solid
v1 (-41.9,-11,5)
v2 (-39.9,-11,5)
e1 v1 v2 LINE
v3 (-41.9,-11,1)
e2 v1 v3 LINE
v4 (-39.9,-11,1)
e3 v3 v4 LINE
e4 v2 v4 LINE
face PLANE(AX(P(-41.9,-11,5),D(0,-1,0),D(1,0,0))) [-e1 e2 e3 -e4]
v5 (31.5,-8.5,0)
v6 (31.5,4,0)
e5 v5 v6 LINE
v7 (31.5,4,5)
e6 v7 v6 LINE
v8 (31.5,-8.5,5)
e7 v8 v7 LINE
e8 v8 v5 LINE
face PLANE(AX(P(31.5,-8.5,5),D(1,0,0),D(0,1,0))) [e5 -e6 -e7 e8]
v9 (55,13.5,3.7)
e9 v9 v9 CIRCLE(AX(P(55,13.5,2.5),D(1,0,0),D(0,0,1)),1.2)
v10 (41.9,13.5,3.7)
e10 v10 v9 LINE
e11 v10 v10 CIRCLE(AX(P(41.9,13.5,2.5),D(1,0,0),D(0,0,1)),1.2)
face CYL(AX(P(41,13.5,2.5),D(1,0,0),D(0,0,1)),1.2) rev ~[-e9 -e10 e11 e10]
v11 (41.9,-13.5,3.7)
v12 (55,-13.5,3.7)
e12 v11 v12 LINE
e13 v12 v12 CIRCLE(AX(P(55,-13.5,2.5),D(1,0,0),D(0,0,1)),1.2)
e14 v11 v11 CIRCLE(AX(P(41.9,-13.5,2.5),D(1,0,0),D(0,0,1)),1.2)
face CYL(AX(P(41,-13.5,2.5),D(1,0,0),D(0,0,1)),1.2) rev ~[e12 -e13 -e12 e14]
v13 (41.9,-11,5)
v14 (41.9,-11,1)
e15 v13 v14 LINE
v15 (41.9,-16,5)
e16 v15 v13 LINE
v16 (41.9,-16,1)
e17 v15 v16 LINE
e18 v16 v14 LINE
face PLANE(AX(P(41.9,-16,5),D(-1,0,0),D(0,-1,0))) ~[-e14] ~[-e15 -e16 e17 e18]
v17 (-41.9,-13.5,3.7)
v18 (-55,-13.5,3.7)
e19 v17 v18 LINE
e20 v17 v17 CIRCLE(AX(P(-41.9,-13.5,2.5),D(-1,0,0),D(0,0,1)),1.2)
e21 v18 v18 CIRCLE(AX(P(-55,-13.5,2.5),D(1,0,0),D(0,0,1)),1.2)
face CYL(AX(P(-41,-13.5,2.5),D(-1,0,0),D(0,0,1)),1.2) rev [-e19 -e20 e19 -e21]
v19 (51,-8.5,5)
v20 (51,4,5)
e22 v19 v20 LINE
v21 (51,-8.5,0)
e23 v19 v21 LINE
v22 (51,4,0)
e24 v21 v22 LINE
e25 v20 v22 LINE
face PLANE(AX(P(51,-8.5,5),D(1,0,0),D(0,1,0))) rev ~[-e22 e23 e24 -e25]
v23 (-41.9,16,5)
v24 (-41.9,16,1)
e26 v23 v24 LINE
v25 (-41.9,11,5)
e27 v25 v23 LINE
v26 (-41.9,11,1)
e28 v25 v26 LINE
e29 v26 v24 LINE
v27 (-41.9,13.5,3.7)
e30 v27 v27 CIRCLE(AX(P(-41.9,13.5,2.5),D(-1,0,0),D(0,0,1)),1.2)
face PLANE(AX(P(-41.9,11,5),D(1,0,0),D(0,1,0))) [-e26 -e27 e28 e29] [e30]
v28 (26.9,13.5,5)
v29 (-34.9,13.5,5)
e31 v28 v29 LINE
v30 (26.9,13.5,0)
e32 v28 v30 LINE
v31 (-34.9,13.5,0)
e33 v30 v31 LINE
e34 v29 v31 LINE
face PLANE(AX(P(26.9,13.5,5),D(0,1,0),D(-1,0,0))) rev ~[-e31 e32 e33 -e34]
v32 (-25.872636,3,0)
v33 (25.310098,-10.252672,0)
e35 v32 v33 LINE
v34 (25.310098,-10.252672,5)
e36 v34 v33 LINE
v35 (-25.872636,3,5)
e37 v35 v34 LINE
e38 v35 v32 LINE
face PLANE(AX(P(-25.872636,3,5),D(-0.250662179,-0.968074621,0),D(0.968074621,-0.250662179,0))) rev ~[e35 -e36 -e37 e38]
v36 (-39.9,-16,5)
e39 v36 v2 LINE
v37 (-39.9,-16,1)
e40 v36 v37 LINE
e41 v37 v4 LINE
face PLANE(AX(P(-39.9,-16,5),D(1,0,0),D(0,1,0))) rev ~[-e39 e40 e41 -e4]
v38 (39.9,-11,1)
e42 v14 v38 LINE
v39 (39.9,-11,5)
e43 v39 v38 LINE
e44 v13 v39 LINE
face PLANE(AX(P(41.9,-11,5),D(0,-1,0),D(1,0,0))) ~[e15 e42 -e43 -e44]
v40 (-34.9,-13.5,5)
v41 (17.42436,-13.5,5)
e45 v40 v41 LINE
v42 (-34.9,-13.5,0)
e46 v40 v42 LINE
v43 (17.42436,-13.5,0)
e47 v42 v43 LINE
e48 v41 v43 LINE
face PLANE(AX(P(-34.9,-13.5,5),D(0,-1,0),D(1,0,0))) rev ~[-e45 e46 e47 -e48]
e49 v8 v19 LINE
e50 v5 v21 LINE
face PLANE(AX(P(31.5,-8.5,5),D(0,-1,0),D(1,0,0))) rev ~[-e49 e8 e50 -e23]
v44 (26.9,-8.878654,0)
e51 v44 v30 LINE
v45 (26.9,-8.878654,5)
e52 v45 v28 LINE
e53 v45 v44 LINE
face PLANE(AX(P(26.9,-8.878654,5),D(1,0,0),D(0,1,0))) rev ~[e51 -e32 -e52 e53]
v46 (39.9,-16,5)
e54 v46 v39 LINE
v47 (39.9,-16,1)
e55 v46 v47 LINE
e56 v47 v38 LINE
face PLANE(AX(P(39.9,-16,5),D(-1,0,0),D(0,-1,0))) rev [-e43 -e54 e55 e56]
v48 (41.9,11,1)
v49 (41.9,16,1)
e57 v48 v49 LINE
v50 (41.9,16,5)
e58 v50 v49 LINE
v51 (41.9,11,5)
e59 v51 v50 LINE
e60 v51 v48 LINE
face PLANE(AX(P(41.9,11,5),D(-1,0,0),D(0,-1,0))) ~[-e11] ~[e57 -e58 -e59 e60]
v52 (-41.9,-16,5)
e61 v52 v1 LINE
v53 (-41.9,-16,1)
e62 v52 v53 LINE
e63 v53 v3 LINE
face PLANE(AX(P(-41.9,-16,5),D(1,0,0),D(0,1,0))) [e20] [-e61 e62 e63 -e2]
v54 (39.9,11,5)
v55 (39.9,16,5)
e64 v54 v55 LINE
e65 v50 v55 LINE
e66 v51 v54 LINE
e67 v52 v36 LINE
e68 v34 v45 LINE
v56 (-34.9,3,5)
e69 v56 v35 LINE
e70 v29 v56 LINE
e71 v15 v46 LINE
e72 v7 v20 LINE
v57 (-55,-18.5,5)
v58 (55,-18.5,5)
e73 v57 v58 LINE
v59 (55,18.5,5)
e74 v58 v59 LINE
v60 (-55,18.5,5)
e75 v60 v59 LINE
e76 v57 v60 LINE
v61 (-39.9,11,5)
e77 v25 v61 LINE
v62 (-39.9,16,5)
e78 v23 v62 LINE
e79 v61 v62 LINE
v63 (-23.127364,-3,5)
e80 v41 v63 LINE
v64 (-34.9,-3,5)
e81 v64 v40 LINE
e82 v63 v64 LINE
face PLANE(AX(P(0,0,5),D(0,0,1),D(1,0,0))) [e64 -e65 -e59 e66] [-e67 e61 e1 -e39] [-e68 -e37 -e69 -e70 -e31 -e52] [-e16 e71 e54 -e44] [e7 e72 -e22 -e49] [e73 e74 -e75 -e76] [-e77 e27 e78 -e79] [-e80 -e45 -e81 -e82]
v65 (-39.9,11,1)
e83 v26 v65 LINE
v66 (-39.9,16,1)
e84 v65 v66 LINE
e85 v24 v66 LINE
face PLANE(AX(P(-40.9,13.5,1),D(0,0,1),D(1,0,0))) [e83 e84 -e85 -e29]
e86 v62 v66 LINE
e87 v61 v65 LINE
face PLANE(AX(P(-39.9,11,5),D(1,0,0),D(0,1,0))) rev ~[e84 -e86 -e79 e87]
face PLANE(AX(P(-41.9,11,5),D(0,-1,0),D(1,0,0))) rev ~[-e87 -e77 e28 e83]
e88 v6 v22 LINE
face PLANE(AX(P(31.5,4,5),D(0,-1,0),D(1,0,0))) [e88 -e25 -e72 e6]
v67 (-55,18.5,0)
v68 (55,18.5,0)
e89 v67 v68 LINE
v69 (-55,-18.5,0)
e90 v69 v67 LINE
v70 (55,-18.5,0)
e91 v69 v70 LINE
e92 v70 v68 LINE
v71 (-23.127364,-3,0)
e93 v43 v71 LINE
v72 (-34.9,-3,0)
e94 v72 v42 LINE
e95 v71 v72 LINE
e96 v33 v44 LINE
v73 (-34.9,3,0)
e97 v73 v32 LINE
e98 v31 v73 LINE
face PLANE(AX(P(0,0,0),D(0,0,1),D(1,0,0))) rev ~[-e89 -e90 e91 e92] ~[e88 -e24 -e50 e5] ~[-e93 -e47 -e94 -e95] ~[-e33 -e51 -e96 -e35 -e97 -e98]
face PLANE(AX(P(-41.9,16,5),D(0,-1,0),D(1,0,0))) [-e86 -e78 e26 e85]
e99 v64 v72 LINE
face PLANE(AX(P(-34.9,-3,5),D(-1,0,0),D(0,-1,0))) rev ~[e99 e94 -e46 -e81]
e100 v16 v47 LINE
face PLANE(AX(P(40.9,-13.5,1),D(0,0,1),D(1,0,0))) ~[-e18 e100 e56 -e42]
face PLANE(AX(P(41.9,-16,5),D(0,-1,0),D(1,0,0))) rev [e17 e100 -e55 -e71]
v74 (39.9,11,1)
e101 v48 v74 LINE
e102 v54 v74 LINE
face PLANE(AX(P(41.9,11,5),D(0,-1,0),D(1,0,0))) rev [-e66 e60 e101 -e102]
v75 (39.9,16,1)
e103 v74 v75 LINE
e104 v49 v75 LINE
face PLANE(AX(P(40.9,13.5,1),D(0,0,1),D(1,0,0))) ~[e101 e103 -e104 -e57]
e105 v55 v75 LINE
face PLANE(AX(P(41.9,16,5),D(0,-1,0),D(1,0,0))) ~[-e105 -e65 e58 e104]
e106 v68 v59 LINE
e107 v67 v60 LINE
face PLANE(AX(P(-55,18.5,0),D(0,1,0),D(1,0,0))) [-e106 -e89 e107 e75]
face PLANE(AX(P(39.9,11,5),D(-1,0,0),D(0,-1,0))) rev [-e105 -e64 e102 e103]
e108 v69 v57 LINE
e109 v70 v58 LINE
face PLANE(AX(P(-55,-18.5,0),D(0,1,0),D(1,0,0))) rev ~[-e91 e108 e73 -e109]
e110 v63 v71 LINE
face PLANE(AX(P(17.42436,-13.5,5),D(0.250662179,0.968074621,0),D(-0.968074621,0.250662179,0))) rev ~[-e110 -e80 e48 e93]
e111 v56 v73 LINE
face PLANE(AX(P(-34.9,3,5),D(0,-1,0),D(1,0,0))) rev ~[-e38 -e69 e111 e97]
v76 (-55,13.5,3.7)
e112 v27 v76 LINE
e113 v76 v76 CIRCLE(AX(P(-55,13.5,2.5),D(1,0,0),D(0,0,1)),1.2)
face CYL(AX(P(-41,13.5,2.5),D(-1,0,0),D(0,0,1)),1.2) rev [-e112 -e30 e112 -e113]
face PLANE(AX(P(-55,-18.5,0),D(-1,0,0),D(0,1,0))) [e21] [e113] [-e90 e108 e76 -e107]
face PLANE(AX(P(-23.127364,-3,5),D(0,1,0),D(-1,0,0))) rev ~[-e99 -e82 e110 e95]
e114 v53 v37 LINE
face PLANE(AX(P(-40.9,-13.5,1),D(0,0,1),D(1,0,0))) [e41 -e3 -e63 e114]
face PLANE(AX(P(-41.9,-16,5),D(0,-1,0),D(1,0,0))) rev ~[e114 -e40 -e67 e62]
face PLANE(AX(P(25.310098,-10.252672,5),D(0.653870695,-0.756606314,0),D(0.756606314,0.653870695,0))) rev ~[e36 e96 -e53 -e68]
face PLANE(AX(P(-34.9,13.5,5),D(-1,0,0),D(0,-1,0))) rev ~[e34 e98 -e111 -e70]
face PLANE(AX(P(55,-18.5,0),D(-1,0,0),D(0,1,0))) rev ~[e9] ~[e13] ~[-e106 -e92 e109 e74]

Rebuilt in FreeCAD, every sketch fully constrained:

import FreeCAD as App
import Part
import Sketcher
Q = App.Units.Quantity

doc = App.newDocument("Part")
body = doc.addObject("PartDesign::Body", "Body")

# Sketch on XY plane
sketch1 = doc.addObject("Sketcher::SketchObject", "Sketch")
body.addObject(sketch1)
sketch1.AttachmentSupport = (doc.XY_Plane, [""])
sketch1.MapMode = "FlatFace"
sketch1.addGeometry([
    Part.LineSegment(App.Vector(-55, 18, 0), App.Vector(-55, -18, 0)),
    Part.LineSegment(App.Vector(-55, -18, 0), App.Vector(55, -18, 0)),
    Part.LineSegment(App.Vector(55, -18, 0), App.Vector(55, 18, 0)),
    Part.LineSegment(App.Vector(55, 18, 0), App.Vector(-55, 18, 0)),
], False)
sketch1.addConstraint([
    Sketcher.Constraint("Coincident", 0, 2, 1, 1),
    Sketcher.Constraint("Coincident", 1, 2, 2, 1),
    Sketcher.Constraint("Coincident", 2, 2, 3, 1),
    Sketcher.Constraint("Coincident", 3, 2, 0, 1),
    Sketcher.Constraint("Vertical", 0),
    Sketcher.Constraint("Horizontal", 1),
    Sketcher.Constraint("Vertical", 2),
    Sketcher.Constraint("Horizontal", 3),
    Sketcher.Constraint("Symmetric", 0, 2, 2, 2, -1, 1),
    Sketcher.Constraint("DistanceX", 1, 1, 1, 2, 110.0),
    Sketcher.Constraint("DistanceY", 0, 2, 0, 1, 37.0),
])
pad1 = doc.addObject("PartDesign::Pad", "Pad")
body.addObject(pad1)
pad1.Profile = sketch1
pad1.Length = 5

# Sketch on XZ plane
sketch2 = doc.addObject("Sketcher::SketchObject", "Sketch001")
body.addObject(sketch2)
sketch2.AttachmentSupport = (doc.XZ_Plane, [""])
sketch2.MapMode = "FlatFace"
sketch2.AttachmentOffset = App.Placement(App.Vector(0, 0, -13.5), App.Rotation())
sketch2.addGeometry([
    Part.LineSegment(App.Vector(-40.3, 2.5, 0), App.Vector(-55, 2.5, 0)),
    Part.LineSegment(App.Vector(-55, 2.5, 0), App.Vector(-55, 3.7, 0)),
    Part.LineSegment(App.Vector(-55, 3.7, 0), App.Vector(-41, 3.7, 0)),
    Part.LineSegment(App.Vector(-41, 3.7, 0), App.Vector(-40.3, 2.5, 0)),
], False)
sketch2.addGeometry(Part.LineSegment(App.Vector(-55, 2.5, 0), App.Vector(-40.3, 2.5, 0)), True)  # axis
sketch2.addConstraint([
    Sketcher.Constraint("Coincident", 0, 2, 1, 1),
    Sketcher.Constraint("Coincident", 1, 2, 2, 1),
    Sketcher.Constraint("Coincident", 2, 2, 3, 1),
    Sketcher.Constraint("Coincident", 3, 2, 0, 1),
    Sketcher.Constraint("Horizontal", 0),
    Sketcher.Constraint("Vertical", 1),
    Sketcher.Constraint("Horizontal", 2),
    Sketcher.Constraint("Horizontal", 4),
    Sketcher.Constraint("Coincident", 4, 1, 0, 2),
    Sketcher.Constraint("Equal", 0, 4),
    Sketcher.Constraint("DistanceX", 2, 1, 2, 2, 14.0),
    Sketcher.Constraint("Angle", 3, Q("-59 deg")),
    Sketcher.Constraint("DistanceY", 1, 1, 1, 2, 1.2),
    Sketcher.Constraint("DistanceX", 0, 2, -1, 1, 55.0),
    Sketcher.Constraint("DistanceY", -1, 1, 0, 2, 2.5),
])
groove = doc.addObject("PartDesign::Groove", "Groove")
body.addObject(groove)
groove.Profile = sketch2
groove.ReferenceAxis = (sketch2, ["Axis0"])
groove.Angle = 360
doc.recompute()

linearpattern = doc.addObject("PartDesign::LinearPattern", "LinearPattern")
body.addObject(linearpattern)
linearpattern.Originals = [groove]
linearpattern.Direction = (doc.Y_Axis, [""])
linearpattern.Mode = "offset"
linearpattern.Offset = 27
linearpattern.Occurrences = 2
linearpattern.Reversed = True
body.Tip = linearpattern

# Sketch on XY plane
sketch3 = doc.addObject("Sketcher::SketchObject", "Sketch002")
body.addObject(sketch3)
sketch3.AttachmentSupport = (doc.XY_Plane, [""])
sketch3.MapMode = "FlatFace"
sketch3.AttachmentOffset = App.Placement(App.Vector(0, 0, 5), App.Rotation())
sketch3.addGeometry([
    Part.LineSegment(App.Vector(-41.9, 16, 0), App.Vector(-41.9, 11, 0)),  # 0
    Part.LineSegment(App.Vector(-41.9, 11, 0), App.Vector(-39.9, 11, 0)),  # 1
    Part.LineSegment(App.Vector(-39.9, 11, 0), App.Vector(-39.9, 16, 0)),  # 2
    Part.LineSegment(App.Vector(-39.9, 16, 0), App.Vector(-41.9, 16, 0)),  # 3
    Part.LineSegment(App.Vector(-41.9, -11, 0), App.Vector(-41.9, -16, 0)),  # 4
    Part.LineSegment(App.Vector(-41.9, -16, 0), App.Vector(-39.9, -16, 0)),  # 5
    Part.LineSegment(App.Vector(-39.9, -16, 0), App.Vector(-39.9, -11, 0)),  # 6
    Part.LineSegment(App.Vector(-39.9, -11, 0), App.Vector(-41.9, -11, 0)),  # 7
], False)
sketch3.addConstraint([
    Sketcher.Constraint("Coincident", 0, 2, 1, 1),
    Sketcher.Constraint("Coincident", 1, 2, 2, 1),
    Sketcher.Constraint("Coincident", 2, 2, 3, 1),
    Sketcher.Constraint("Coincident", 3, 2, 0, 1),
    Sketcher.Constraint("Coincident", 4, 2, 5, 1),
    Sketcher.Constraint("Coincident", 5, 2, 6, 1),
    Sketcher.Constraint("Coincident", 6, 2, 7, 1),
    Sketcher.Constraint("Coincident", 7, 2, 4, 1),
    Sketcher.Constraint("Vertical", 0),
    Sketcher.Constraint("Horizontal", 1),
    Sketcher.Constraint("Vertical", 2),
    Sketcher.Constraint("Horizontal", 3),
    Sketcher.Constraint("Vertical", 4),
    Sketcher.Constraint("Horizontal", 5),
    Sketcher.Constraint("Vertical", 6),
    Sketcher.Constraint("Horizontal", 7),
    Sketcher.Constraint("Symmetric", 3, 2, 4, 2, -1),
    Sketcher.Constraint("Symmetric", 1, 2, 6, 2, -1),
    Sketcher.Constraint("DistanceX", 1, 1, 1, 2, 2.0),
    Sketcher.Constraint("DistanceY", 0, 2, 0, 1, 5.0),
    Sketcher.Constraint("DistanceY", -1, 1, 0, 2, 11.0),
    Sketcher.Constraint("DistanceX", 0, 2, -1, 1, 41.9),
])
pocket1 = doc.addObject("PartDesign::Pocket", "Pocket")
body.addObject(pocket1)
pocket1.Profile = sketch3
pocket1.Length = 4
doc.recompute()

mirrored = doc.addObject("PartDesign::Mirrored", "Mirrored")
body.addObject(mirrored)
mirrored.Originals = [groove, pocket1]
mirrored.MirrorPlane = (doc.YZ_Plane, [""])
body.Tip = mirrored

# Sketch on XZ plane
sketch4 = doc.addObject("Sketcher::SketchObject", "Sketch003")
body.addObject(sketch4)
sketch4.AttachmentSupport = (doc.XZ_Plane, [""])
sketch4.MapMode = "FlatFace"
sketch4.AttachmentOffset = App.Placement(App.Vector(0, 0, 13.5), App.Rotation())
sketch4.addGeometry([
    Part.LineSegment(App.Vector(55, 2.5, 0), App.Vector(40.3, 2.5, 0)),
    Part.LineSegment(App.Vector(40.3, 2.5, 0), App.Vector(41, 3.7, 0)),
    Part.LineSegment(App.Vector(41, 3.7, 0), App.Vector(55, 3.7, 0)),
    Part.LineSegment(App.Vector(55, 3.7, 0), App.Vector(55, 2.5, 0)),
], False)
sketch4.addGeometry(Part.LineSegment(App.Vector(40.3, 2.5, 0), App.Vector(55, 2.5, 0)), True)  # axis
sketch4.addConstraint([
    Sketcher.Constraint("Coincident", 0, 2, 1, 1),
    Sketcher.Constraint("Coincident", 1, 2, 2, 1),
    Sketcher.Constraint("Coincident", 2, 2, 3, 1),
    Sketcher.Constraint("Coincident", 3, 2, 0, 1),
    Sketcher.Constraint("Horizontal", 0),
    Sketcher.Constraint("Horizontal", 2),
    Sketcher.Constraint("Vertical", 3),
    Sketcher.Constraint("Horizontal", 4),
    Sketcher.Constraint("Coincident", 4, 1, 0, 2),
    Sketcher.Constraint("Vertical", 2, 2, 4, 2),
    Sketcher.Constraint("DistanceX", 2, 1, 2, 2, 14.0),
    Sketcher.Constraint("Angle", 1, Q("59 deg")),
    Sketcher.Constraint("DistanceY", 3, 2, 3, 1, 1.2),
    Sketcher.Constraint("DistanceX", -1, 1, 1, 2, 41.0),
    Sketcher.Constraint("DistanceY", -1, 1, 0, 2, 2.5),
])
groove2 = doc.addObject("PartDesign::Groove", "Groove001")
body.addObject(groove2)
groove2.Profile = sketch4
groove2.ReferenceAxis = (sketch4, ["Axis0"])
groove2.Angle = 360

# Sketch on XY plane
sketch5 = doc.addObject("Sketcher::SketchObject", "Sketch004")
body.addObject(sketch5)
sketch5.AttachmentSupport = (doc.XY_Plane, [""])
sketch5.MapMode = "FlatFace"
sketch5.AttachmentOffset = App.Placement(App.Vector(0, 0, 5), App.Rotation())
sketch5.addGeometry([
    Part.LineSegment(App.Vector(32, 4, 0), App.Vector(32, -8, 0)),
    Part.LineSegment(App.Vector(32, -8, 0), App.Vector(51, -8, 0)),
    Part.LineSegment(App.Vector(51, -8, 0), App.Vector(51, 4, 0)),
    Part.LineSegment(App.Vector(51, 4, 0), App.Vector(32, 4, 0)),
], False)
sketch5.addConstraint([
    Sketcher.Constraint("Coincident", 0, 2, 1, 1),
    Sketcher.Constraint("Coincident", 1, 2, 2, 1),
    Sketcher.Constraint("Coincident", 2, 2, 3, 1),
    Sketcher.Constraint("Coincident", 3, 2, 0, 1),
    Sketcher.Constraint("Vertical", 0),
    Sketcher.Constraint("Horizontal", 1),
    Sketcher.Constraint("Vertical", 2),
    Sketcher.Constraint("Horizontal", 3),
    Sketcher.Constraint("DistanceX", 1, 1, 1, 2, 19.5),
    Sketcher.Constraint("DistanceY", 0, 2, 0, 1, 12.5),
    Sketcher.Constraint("DistanceX", -1, 1, 1, 2, 51.0),
    Sketcher.Constraint("DistanceY", -1, 1, 2, 2, 4.0),
])
pocket2 = doc.addObject("PartDesign::Pocket", "Pocket001")
body.addObject(pocket2)
pocket2.Profile = sketch5
pocket2.Length = 10

# Sketch on XY plane
sketch6 = doc.addObject("Sketcher::SketchObject", "Sketch005")
body.addObject(sketch6)
sketch6.AttachmentSupport = (doc.XY_Plane, [""])
sketch6.MapMode = "FlatFace"
sketch6.AttachmentOffset = App.Placement(App.Vector(0, 0, 5), App.Rotation())
sketch6.addGeometry([
    Part.LineSegment(App.Vector(-34.9, -3, 0), App.Vector(-34.9, -13.5, 0)),  # 0
    Part.LineSegment(App.Vector(-34.9, -13.5, 0), App.Vector(17.4, -13.5, 0)),  # 1
    Part.LineSegment(App.Vector(17.4, -13.5, 0), App.Vector(-23.1, -3, 0)),  # 2
    Part.LineSegment(App.Vector(-23.1, -3, 0), App.Vector(-34.9, -3, 0)),  # 3
    Part.LineSegment(App.Vector(-34.9, 13.5, 0), App.Vector(-34.9, 3, 0)),  # 4
    Part.LineSegment(App.Vector(-34.9, 3, 0), App.Vector(-25.9, 3, 0)),  # 5
    Part.LineSegment(App.Vector(-25.9, 3, 0), App.Vector(25.3, -10.3, 0)),  # 6
    Part.LineSegment(App.Vector(25.3, -10.3, 0), App.Vector(26.9, -8.9, 0)),  # 7
    Part.LineSegment(App.Vector(26.9, -8.9, 0), App.Vector(26.9, 13.5, 0)),  # 8
    Part.LineSegment(App.Vector(26.9, 13.5, 0), App.Vector(-34.9, 13.5, 0)),  # 9
], False)
sketch6.addConstraint([
    Sketcher.Constraint("Coincident", 0, 2, 1, 1),
    Sketcher.Constraint("Coincident", 1, 2, 2, 1),
    Sketcher.Constraint("Coincident", 2, 2, 3, 1),
    Sketcher.Constraint("Coincident", 3, 2, 0, 1),
    Sketcher.Constraint("Coincident", 4, 2, 5, 1),
    Sketcher.Constraint("Coincident", 5, 2, 6, 1),
    Sketcher.Constraint("Coincident", 6, 2, 7, 1),
    Sketcher.Constraint("Coincident", 7, 2, 8, 1),
    Sketcher.Constraint("Coincident", 8, 2, 9, 1),
    Sketcher.Constraint("Coincident", 9, 2, 4, 1),
    Sketcher.Constraint("Vertical", 0),
    Sketcher.Constraint("Horizontal", 1),
    Sketcher.Constraint("Horizontal", 3),
    Sketcher.Constraint("Vertical", 4),
    Sketcher.Constraint("Horizontal", 5),
    Sketcher.Constraint("Vertical", 8),
    Sketcher.Constraint("Horizontal", 9),
    Sketcher.Constraint("Symmetric", 3, 2, 4, 2, -1),
    Sketcher.Constraint("Parallel", 2, 6),
    Sketcher.Constraint("Equal", 0, 4),
    Sketcher.Constraint("DistanceX", 9, 2, 9, 1, 61.8),
    Sketcher.Constraint("DistanceY", 0, 2, 0, 1, 10.5),
    Sketcher.Constraint("DistanceY", 2, 2, -1, 1, 3.0),
    Sketcher.Constraint("DistanceX", 0, 2, -1, 1, 34.9),
    Sketcher.Constraint("DistanceX", 1, 1, 1, 2, 52.32436),
    Sketcher.Constraint("Distance", 6, 52.870649),
    Sketcher.Constraint("Distance", 7, 2.10136),
    Sketcher.Constraint("DistanceX", 3, 2, 3, 1, 11.772636),
    Sketcher.Constraint("DistanceX", 5, 1, 5, 2, 9.027364),
])
pocket3 = doc.addObject("PartDesign::Pocket", "Pocket002")
body.addObject(pocket3)
pocket3.Profile = sketch6
pocket3.Type = "ThroughAll"

doc.recompute()
